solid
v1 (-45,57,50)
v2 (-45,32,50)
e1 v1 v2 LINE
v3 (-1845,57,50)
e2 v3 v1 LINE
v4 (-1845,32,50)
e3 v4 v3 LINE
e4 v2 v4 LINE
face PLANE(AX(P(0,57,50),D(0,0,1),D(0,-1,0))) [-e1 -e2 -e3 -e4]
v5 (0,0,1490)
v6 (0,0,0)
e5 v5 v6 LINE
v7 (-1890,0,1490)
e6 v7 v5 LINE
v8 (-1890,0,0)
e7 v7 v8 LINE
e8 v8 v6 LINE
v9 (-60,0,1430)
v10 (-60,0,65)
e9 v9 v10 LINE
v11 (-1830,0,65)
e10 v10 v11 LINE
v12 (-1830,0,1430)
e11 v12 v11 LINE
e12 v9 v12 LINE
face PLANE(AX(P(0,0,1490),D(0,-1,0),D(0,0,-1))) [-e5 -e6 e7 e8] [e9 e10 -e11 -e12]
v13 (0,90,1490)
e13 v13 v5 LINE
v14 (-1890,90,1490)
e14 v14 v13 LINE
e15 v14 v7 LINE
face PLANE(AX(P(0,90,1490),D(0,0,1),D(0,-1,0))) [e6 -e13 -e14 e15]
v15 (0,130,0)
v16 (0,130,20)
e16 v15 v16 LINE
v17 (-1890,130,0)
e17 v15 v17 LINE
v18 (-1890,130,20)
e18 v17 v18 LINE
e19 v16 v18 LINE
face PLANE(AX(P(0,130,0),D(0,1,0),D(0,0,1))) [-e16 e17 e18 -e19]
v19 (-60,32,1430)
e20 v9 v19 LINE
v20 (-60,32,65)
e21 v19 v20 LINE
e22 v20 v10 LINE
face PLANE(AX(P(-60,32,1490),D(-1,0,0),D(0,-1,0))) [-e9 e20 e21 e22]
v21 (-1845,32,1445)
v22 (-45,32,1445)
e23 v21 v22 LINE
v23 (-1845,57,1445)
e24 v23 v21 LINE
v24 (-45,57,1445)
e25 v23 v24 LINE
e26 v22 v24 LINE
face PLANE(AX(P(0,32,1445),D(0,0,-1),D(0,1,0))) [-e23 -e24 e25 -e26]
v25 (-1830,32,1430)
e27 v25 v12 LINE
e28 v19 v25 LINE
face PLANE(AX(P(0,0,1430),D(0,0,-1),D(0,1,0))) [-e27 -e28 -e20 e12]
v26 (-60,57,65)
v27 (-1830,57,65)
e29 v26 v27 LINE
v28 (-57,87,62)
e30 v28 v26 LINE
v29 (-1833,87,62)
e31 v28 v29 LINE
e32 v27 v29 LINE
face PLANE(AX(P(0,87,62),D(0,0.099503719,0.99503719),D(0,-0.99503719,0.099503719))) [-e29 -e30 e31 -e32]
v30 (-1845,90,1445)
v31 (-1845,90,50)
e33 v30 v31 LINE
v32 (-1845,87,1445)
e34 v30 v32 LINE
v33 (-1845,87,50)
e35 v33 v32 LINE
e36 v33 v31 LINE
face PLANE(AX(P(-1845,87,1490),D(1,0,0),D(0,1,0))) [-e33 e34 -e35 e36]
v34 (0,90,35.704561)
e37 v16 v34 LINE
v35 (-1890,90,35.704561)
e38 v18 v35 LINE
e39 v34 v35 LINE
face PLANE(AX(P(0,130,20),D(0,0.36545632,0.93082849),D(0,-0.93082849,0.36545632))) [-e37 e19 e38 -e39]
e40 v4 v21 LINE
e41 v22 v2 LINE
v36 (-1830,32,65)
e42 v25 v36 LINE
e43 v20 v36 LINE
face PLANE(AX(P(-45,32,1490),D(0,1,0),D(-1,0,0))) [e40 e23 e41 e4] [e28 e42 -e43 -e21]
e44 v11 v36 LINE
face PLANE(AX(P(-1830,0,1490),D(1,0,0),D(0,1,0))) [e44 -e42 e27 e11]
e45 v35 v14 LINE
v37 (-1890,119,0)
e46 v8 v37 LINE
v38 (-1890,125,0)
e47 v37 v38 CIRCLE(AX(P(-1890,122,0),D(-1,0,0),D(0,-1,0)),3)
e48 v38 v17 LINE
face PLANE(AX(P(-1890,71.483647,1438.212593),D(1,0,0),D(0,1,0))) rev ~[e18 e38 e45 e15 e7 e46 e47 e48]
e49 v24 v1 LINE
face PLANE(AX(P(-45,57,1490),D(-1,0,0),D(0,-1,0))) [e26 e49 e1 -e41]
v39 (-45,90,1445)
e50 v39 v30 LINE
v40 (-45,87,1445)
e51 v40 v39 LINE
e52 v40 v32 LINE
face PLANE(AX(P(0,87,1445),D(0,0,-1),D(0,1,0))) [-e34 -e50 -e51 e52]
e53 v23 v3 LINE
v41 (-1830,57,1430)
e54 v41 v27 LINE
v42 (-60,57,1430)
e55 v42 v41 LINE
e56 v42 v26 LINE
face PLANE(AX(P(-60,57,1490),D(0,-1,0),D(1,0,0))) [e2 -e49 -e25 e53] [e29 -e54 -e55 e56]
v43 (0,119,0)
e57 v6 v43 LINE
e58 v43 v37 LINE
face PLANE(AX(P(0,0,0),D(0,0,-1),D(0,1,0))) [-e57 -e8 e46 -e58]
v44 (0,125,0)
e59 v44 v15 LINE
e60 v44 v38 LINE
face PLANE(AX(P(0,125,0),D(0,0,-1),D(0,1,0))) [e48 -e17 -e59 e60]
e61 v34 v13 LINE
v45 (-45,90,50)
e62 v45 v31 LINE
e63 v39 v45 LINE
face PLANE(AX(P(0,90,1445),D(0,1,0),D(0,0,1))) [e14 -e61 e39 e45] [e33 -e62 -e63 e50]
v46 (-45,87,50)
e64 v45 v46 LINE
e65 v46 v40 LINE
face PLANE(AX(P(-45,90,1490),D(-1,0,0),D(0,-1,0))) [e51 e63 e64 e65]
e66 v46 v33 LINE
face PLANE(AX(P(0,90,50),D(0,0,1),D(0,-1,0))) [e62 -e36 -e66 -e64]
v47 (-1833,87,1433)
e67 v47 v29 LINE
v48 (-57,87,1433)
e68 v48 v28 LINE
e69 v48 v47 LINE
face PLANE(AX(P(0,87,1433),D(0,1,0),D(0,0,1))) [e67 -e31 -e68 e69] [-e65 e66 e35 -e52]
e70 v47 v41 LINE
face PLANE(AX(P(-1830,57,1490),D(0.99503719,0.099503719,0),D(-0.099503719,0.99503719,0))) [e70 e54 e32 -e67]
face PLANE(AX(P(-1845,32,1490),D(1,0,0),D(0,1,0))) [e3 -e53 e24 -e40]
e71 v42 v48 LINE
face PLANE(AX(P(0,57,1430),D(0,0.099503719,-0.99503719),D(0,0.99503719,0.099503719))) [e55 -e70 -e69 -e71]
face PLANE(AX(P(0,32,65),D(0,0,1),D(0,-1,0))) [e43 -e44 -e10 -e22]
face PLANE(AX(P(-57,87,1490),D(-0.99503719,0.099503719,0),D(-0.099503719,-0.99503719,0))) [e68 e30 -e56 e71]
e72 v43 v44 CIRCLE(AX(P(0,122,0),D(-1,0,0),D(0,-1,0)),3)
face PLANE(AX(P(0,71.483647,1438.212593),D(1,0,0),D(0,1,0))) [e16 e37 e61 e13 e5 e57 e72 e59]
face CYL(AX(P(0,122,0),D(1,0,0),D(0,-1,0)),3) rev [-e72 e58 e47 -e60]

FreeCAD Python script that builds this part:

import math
import FreeCAD as App
import Part
import Sketcher
from FreeCAD import Vector

doc = App.newDocument("Part")
params = doc.addObject("Spreadsheet::Sheet", "Params")
for row, (alias, value) in enumerate([
    ("sketch1_radius", "3 mm"),
    ("sketch1_width", "119 mm"),
    ("sketch1_width2", "5 mm"),
    ("sketch1_width3", "3 mm"),
    ("sketch1_width4", "25 mm"),
    ("pad1_length", "1890 mm"),
    ("sketch2_width", "60 mm"),
    ("sketch2_width2", "45 mm"),
    ("sketch2_width3", "12 mm"),
    ("sketch2_height", "90 mm"),
    ("sketch2_height2", "3 mm"),
    ("pad2_length", "1490 mm"),
], start=1):
    params.set(f"A{row}", alias)
    params.set(f"B{row}", "=" + value)
    params.setAlias(f"B{row}", alias)

body = doc.addObject("PartDesign::Body", "Body")
body.AllowCompound = True

sketch1 = body.newObject("Sketcher::SketchObject", "Sketch")
sketch1.AttachmentSupport = (doc.getObject("YZ_Plane"), [""])
sketch1.MapMode = "FlatFace"
sketch1.addGeometry(Part.LineSegment(Vector(0, 0, 0), Vector(119, 0, 0)), False)
sketch1.addGeometry(Part.ArcOfCircle(Part.Circle(Vector(122, 0, 0), Vector(0, 0, 1), 3), math.radians(0), math.radians(180)), False)
sketch1.addGeometry(Part.LineSegment(Vector(125, 0, 0), Vector(130, 0, 0)), False)
sketch1.addGeometry(Part.LineSegment(Vector(130, 0, 0), Vector(130, 20, 0)), False)
sketch1.addGeometry(Part.LineSegment(Vector(130, 20, 0), Vector(90, 35.7, 0)), False)
sketch1.addGeometry(Part.LineSegment(Vector(90, 35.7, 0), Vector(90, 50, 0)), False)
sketch1.addGeometry(Part.LineSegment(Vector(90, 50, 0), Vector(87, 50, 0)), False)
sketch1.addGeometry(Part.LineSegment(Vector(87, 50, 0), Vector(87, 62, 0)), False)
sketch1.addGeometry(Part.LineSegment(Vector(87, 62, 0), Vector(57, 65, 0)), False)
sketch1.addGeometry(Part.LineSegment(Vector(57, 65, 0), Vector(57, 50, 0)), False)
sketch1.addGeometry(Part.LineSegment(Vector(57, 50, 0), Vector(32, 50, 0)), False)
sketch1.addGeometry(Part.LineSegment(Vector(32, 50, 0), Vector(32, 65, 0)), False)
sketch1.addGeometry(Part.LineSegment(Vector(32, 65, 0), Vector(0, 65, 0)), False)
sketch1.addGeometry(Part.LineSegment(Vector(0, 65, 0), Vector(0, 0, 0)), False)
sketch1.addGeometry(Part.LineSegment(Vector(87, 1433, 0), Vector(87, 1445, 0)), False)
sketch1.addGeometry(Part.LineSegment(Vector(87, 1445, 0), Vector(90, 1445, 0)), False)
sketch1.addGeometry(Part.LineSegment(Vector(90, 1445, 0), Vector(90, 1490, 0)), False)
sketch1.addGeometry(Part.LineSegment(Vector(90, 1490, 0), Vector(0, 1490, 0)), False)
sketch1.addGeometry(Part.LineSegment(Vector(0, 1490, 0), Vector(0, 1430, 0)), False)
sketch1.addGeometry(Part.LineSegment(Vector(0, 1430, 0), Vector(32, 1430, 0)), False)
sketch1.addGeometry(Part.LineSegment(Vector(32, 1430, 0), Vector(32, 1445, 0)), False)
sketch1.addGeometry(Part.LineSegment(Vector(32, 1445, 0), Vector(57, 1445, 0)), False)
sketch1.addGeometry(Part.LineSegment(Vector(57, 1445, 0), Vector(57, 1430, 0)), False)
sketch1.addGeometry(Part.LineSegment(Vector(57, 1430, 0), Vector(87, 1433, 0)), False)
sketch1.addConstraint(Sketcher.Constraint("Coincident", 0, 2, 1, 2))
sketch1.addConstraint(Sketcher.Constraint("Coincident", 1, 1, 2, 1))
sketch1.addConstraint(Sketcher.Constraint("Coincident", 2, 2, 3, 1))
sketch1.addConstraint(Sketcher.Constraint("Coincident", 3, 2, 4, 1))
sketch1.addConstraint(Sketcher.Constraint("Coincident", 4, 2, 5, 1))
sketch1.addConstraint(Sketcher.Constraint("Coincident", 5, 2, 6, 1))
sketch1.addConstraint(Sketcher.Constraint("Coincident", 6, 2, 7, 1))
sketch1.addConstraint(Sketcher.Constraint("Coincident", 7, 2, 8, 1))
sketch1.addConstraint(Sketcher.Constraint("Coincident", 8, 2, 9, 1))
sketch1.addConstraint(Sketcher.Constraint("Coincident", 9, 2, 10, 1))
sketch1.addConstraint(Sketcher.Constraint("Coincident", 10, 2, 11, 1))
sketch1.addConstraint(Sketcher.Constraint("Coincident", 11, 2, 12, 1))
sketch1.addConstraint(Sketcher.Constraint("Coincident", 12, 2, 13, 1))
sketch1.addConstraint(Sketcher.Constraint("Coincident", 13, 2, 0, 1))
sketch1.addConstraint(Sketcher.Constraint("Coincident", 14, 2, 15, 1))
sketch1.addConstraint(Sketcher.Constraint("Coincident", 15, 2, 16, 1))
sketch1.addConstraint(Sketcher.Constraint("Coincident", 16, 2, 17, 1))
sketch1.addConstraint(Sketcher.Constraint("Coincident", 17, 2, 18, 1))
sketch1.addConstraint(Sketcher.Constraint("Coincident", 18, 2, 19, 1))
sketch1.addConstraint(Sketcher.Constraint("Coincident", 19, 2, 20, 1))
sketch1.addConstraint(Sketcher.Constraint("Coincident", 20, 2, 21, 1))
sketch1.addConstraint(Sketcher.Constraint("Coincident", 21, 2, 22, 1))
sketch1.addConstraint(Sketcher.Constraint("Coincident", 22, 2, 23, 1))
sketch1.addConstraint(Sketcher.Constraint("Coincident", 23, 2, 14, 1))
sketch1.addConstraint(Sketcher.Constraint("Horizontal", 0))
sketch1.addConstraint(Sketcher.Constraint("Horizontal", 2))
sketch1.addConstraint(Sketcher.Constraint("Vertical", 3))
sketch1.addConstraint(Sketcher.Constraint("Vertical", 5))
sketch1.addConstraint(Sketcher.Constraint("Horizontal", 6))
sketch1.addConstraint(Sketcher.Constraint("Vertical", 7))
sketch1.addConstraint(Sketcher.Constraint("Vertical", 9))
sketch1.addConstraint(Sketcher.Constraint("Horizontal", 10))
sketch1.addConstraint(Sketcher.Constraint("Vertical", 11))
sketch1.addConstraint(Sketcher.Constraint("Horizontal", 12))
sketch1.addConstraint(Sketcher.Constraint("Vertical", 13))
sketch1.addConstraint(Sketcher.Constraint("Vertical", 14))
sketch1.addConstraint(Sketcher.Constraint("Horizontal", 15))
sketch1.addConstraint(Sketcher.Constraint("Vertical", 16))
sketch1.addConstraint(Sketcher.Constraint("Horizontal", 17))
sketch1.addConstraint(Sketcher.Constraint("Vertical", 18))
sketch1.addConstraint(Sketcher.Constraint("Horizontal", 19))
sketch1.addConstraint(Sketcher.Constraint("Vertical", 20))
sketch1.addConstraint(Sketcher.Constraint("Horizontal", 21))
sketch1.addConstraint(Sketcher.Constraint("Vertical", 22))
sketch1.addConstraint(Sketcher.Constraint("Coincident", 13, 2, -1, 1))
sketch1.addConstraint(Sketcher.Constraint("PointOnObject", 1, 3, -1))
sketch1.addConstraint(Sketcher.Constraint("PointOnObject", 1, 1, -1))
sketch1.addConstraint(Sketcher.Constraint("PointOnObject", 17, 2, -2))
sketch1.addConstraint(Sketcher.Constraint("Horizontal", 6, 2, 9, 2))
sketch1.addConstraint(Sketcher.Constraint("Horizontal", 8, 2, 11, 2))
sketch1.addConstraint(Sketcher.Constraint("Horizontal", 15, 2, 20, 2))
sketch1.addConstraint(Sketcher.Constraint("Horizontal", 19, 2, 22, 2))
sketch1.addConstraint(Sketcher.Constraint("Vertical", 7, 2, 14, 2))
sketch1.addConstraint(Sketcher.Constraint("Vertical", 5, 2, 15, 2))
sketch1.addConstraint(Sketcher.Constraint("Vertical", 11, 2, 19, 2))
sketch1.addConstraint(Sketcher.Constraint("Vertical", 9, 2, 21, 2))
sketch1.addConstraint(Sketcher.Constraint("Equal", 7, 14))
sketch1.addConstraint(Sketcher.Constraint("Equal", 11, 20))
sketch1.addConstraint(Sketcher.Constraint("Radius", 1, 3.0))
sketch1.addConstraint(Sketcher.Constraint("DistanceX", 0, 1, 0, 2, 119.0))
sketch1.addConstraint(Sketcher.Constraint("DistanceX", 2, 1, 2, 2, 5.0))
sketch1.addConstraint(Sketcher.Constraint("DistanceX", 6, 2, 6, 1, 3.0))
sketch1.addConstraint(Sketcher.Constraint("DistanceX", 10, 2, 10, 1, 25.0))
sketch1.addConstraint(Sketcher.Constraint("DistanceX", 12, 2, 12, 1, 32.0))
sketch1.addConstraint(Sketcher.Constraint("DistanceX", 17, 2, 17, 1, 90.0))
sketch1.addConstraint(Sketcher.Constraint("DistanceY", 3, 1, 3, 2, 20.0))
sketch1.addConstraint(Sketcher.Constraint("DistanceY", 7, 1, 7, 2, 12.0))
sketch1.addConstraint(Sketcher.Constraint("DistanceY", 9, 2, 9, 1, 15.0))
sketch1.addConstraint(Sketcher.Constraint("DistanceY", 13, 2, 13, 1, 65.0))
sketch1.addConstraint(Sketcher.Constraint("DistanceY", 16, 1, 16, 2, 45.0))
sketch1.addConstraint(Sketcher.Constraint("DistanceY", -1, 1, 14, 2, 1445.0))
sketch1.addConstraint(Sketcher.Constraint("DistanceY", 5, 1, 5, 2, 14.295439))
sketch1.setExpression("Constraints[58]", "Params.sketch1_radius")
sketch1.setExpression("Constraints[59]", "Params.sketch1_width")
sketch1.setExpression("Constraints[60]", "Params.sketch1_width2")
sketch1.setExpression("Constraints[61]", "Params.sketch1_width3")
sketch1.setExpression("Constraints[62]", "Params.sketch1_width4")
pad1 = body.newObject("PartDesign::Pad", "Pad")
pad1.Profile = sketch1
pad1.setExpression("Length", "Params.pad1_length")
pad1.Reversed = True

sketch2 = body.newObject("Sketcher::SketchObject", "Sketch001")
sketch2.AttachmentSupport = (doc.getObject("XY_Plane"), [""])
sketch2.MapMode = "FlatFace"
sketch2.AttachmentOffset = App.Placement(Vector(0, 0, 1490), App.Rotation())
sketch2.addGeometry(Part.LineSegment(Vector(-60, 0, 0), Vector(0, 0, 0)), False)
sketch2.addGeometry(Part.LineSegment(Vector(0, 0, 0), Vector(0, 90, 0)), False)
sketch2.addGeometry(Part.LineSegment(Vector(0, 90, 0), Vector(-45, 90, 0)), False)
sketch2.addGeometry(Part.LineSegment(Vector(-45, 90, 0), Vector(-45, 87, 0)), False)
sketch2.addGeometry(Part.LineSegment(Vector(-45, 87, 0), Vector(-57, 87, 0)), False)
sketch2.addGeometry(Part.LineSegment(Vector(-57, 87, 0), Vector(-60, 57, 0)), False)
sketch2.addGeometry(Part.LineSegment(Vector(-60, 57, 0), Vector(-45, 57, 0)), False)
sketch2.addGeometry(Part.LineSegment(Vector(-45, 57, 0), Vector(-45, 32, 0)), False)
sketch2.addGeometry(Part.LineSegment(Vector(-45, 32, 0), Vector(-60, 32, 0)), False)
sketch2.addGeometry(Part.LineSegment(Vector(-60, 32, 0), Vector(-60, 0, 0)), False)
sketch2.addGeometry(Part.LineSegment(Vector(-1890, 90, 0), Vector(-1890, 0, 0)), False)
sketch2.addGeometry(Part.LineSegment(Vector(-1890, 0, 0), Vector(-1830, 0, 0)), False)
sketch2.addGeometry(Part.LineSegment(Vector(-1830, 0, 0), Vector(-1830, 32, 0)), False)
sketch2.addGeometry(Part.LineSegment(Vector(-1830, 32, 0), Vector(-1845, 32, 0)), False)
sketch2.addGeometry(Part.LineSegment(Vector(-1845, 32, 0), Vector(-1845, 57, 0)), False)
sketch2.addGeometry(Part.LineSegment(Vector(-1845, 57, 0), Vector(-1830, 57, 0)), False)
sketch2.addGeometry(Part.LineSegment(Vector(-1830, 57, 0), Vector(-1833, 87, 0)), False)
sketch2.addGeometry(Part.LineSegment(Vector(-1833, 87, 0), Vector(-1845, 87, 0)), False)
sketch2.addGeometry(Part.LineSegment(Vector(-1845, 87, 0), Vector(-1845, 90, 0)), False)
sketch2.addGeometry(Part.LineSegment(Vector(-1845, 90, 0), Vector(-1890, 90, 0)), False)
sketch2.addConstraint(Sketcher.Constraint("Coincident", 0, 2, 1, 1))
sketch2.addConstraint(Sketcher.Constraint("Coincident", 1, 2, 2, 1))
sketch2.addConstraint(Sketcher.Constraint("Coincident", 2, 2, 3, 1))
sketch2.addConstraint(Sketcher.Constraint("Coincident", 3, 2, 4, 1))
sketch2.addConstraint(Sketcher.Constraint("Coincident", 4, 2, 5, 1))
sketch2.addConstraint(Sketcher.Constraint("Coincident", 5, 2, 6, 1))
sketch2.addConstraint(Sketcher.Constraint("Coincident", 6, 2, 7, 1))
sketch2.addConstraint(Sketcher.Constraint("Coincident", 7, 2, 8, 1))
sketch2.addConstraint(Sketcher.Constraint("Coincident", 8, 2, 9, 1))
sketch2.addConstraint(Sketcher.Constraint("Coincident", 9, 2, 0, 1))
sketch2.addConstraint(Sketcher.Constraint("Coincident", 10, 2, 11, 1))
sketch2.addConstraint(Sketcher.Constraint("Coincident", 11, 2, 12, 1))
sketch2.addConstraint(Sketcher.Constraint("Coincident", 12, 2, 13, 1))
sketch2.addConstraint(Sketcher.Constraint("Coincident", 13, 2, 14, 1))
sketch2.addConstraint(Sketcher.Constraint("Coincident", 14, 2, 15, 1))
sketch2.addConstraint(Sketcher.Constraint("Coincident", 15, 2, 16, 1))
sketch2.addConstraint(Sketcher.Constraint("Coincident", 16, 2, 17, 1))
sketch2.addConstraint(Sketcher.Constraint("Coincident", 17, 2, 18, 1))
sketch2.addConstraint(Sketcher.Constraint("Coincident", 18, 2, 19, 1))
sketch2.addConstraint(Sketcher.Constraint("Coincident", 19, 2, 10, 1))
sketch2.addConstraint(Sketcher.Constraint("Horizontal", 0))
sketch2.addConstraint(Sketcher.Constraint("Vertical", 1))
sketch2.addConstraint(Sketcher.Constraint("Horizontal", 2))
sketch2.addConstraint(Sketcher.Constraint("Vertical", 3))
sketch2.addConstraint(Sketcher.Constraint("Horizontal", 4))
sketch2.addConstraint(Sketcher.Constraint("Horizontal", 6))
sketch2.addConstraint(Sketcher.Constraint("Vertical", 7))
sketch2.addConstraint(Sketcher.Constraint("Horizontal", 8))
sketch2.addConstraint(Sketcher.Constraint("Vertical", 9))
sketch2.addConstraint(Sketcher.Constraint("Vertical", 10))
sketch2.addConstraint(Sketcher.Constraint("Horizontal", 11))
sketch2.addConstraint(Sketcher.Constraint("Vertical", 12))
sketch2.addConstraint(Sketcher.Constraint("Horizontal", 13))
sketch2.addConstraint(Sketcher.Constraint("Vertical", 14))
sketch2.addConstraint(Sketcher.Constraint("Horizontal", 15))
sketch2.addConstraint(Sketcher.Constraint("Horizontal", 17))
sketch2.addConstraint(Sketcher.Constraint("Vertical", 18))
sketch2.addConstraint(Sketcher.Constraint("Horizontal", 19))
sketch2.addConstraint(Sketcher.Constraint("Coincident", 0, 2, -1, 1))
sketch2.addConstraint(Sketcher.Constraint("PointOnObject", 10, 2, -1))
sketch2.addConstraint(Sketcher.Constraint("Horizontal", 8, 2, 12, 2))
sketch2.addConstraint(Sketcher.Constraint("Horizontal", 6, 2, 14, 2))
sketch2.addConstraint(Sketcher.Constraint("Horizontal", 4, 2, 16, 2))
sketch2.addConstraint(Sketcher.Constraint("Horizontal", 2, 2, 18, 2))
sketch2.addConstraint(Sketcher.Constraint("Vertical", 3, 2, 6, 2))
sketch2.addConstraint(Sketcher.Constraint("Vertical", 5, 2, 8, 2))
sketch2.addConstraint(Sketcher.Constraint("Vertical", 12, 2, 15, 2))
sketch2.addConstraint(Sketcher.Constraint("Vertical", 14, 2, 17, 2))
sketch2.addConstraint(Sketcher.Constraint("Equal", 0, 11))
sketch2.addConstraint(Sketcher.Constraint("Equal", 8, 13))
sketch2.addConstraint(Sketcher.Constraint("Equal", 4, 17))
sketch2.addConstraint(Sketcher.Constraint("DistanceX", 0, 1, 0, 2, 60.0))
sketch2.addConstraint(Sketcher.Constraint("DistanceX", 2, 2, 2, 1, 45.0))
sketch2.addConstraint(Sketcher.Constraint("DistanceX", 4, 2, 4, 1, 12.0))
sketch2.addConstraint(Sketcher.Constraint("DistanceY", 1, 1, 1, 2, 90.0))
sketch2.addConstraint(Sketcher.Constraint("DistanceY", 3, 2, 3, 1, 3.0))
sketch2.addConstraint(Sketcher.Constraint("DistanceY", 7, 2, 7, 1, 25.0))
sketch2.addConstraint(Sketcher.Constraint("DistanceY", 9, 2, 9, 1, 32.0))
sketch2.addConstraint(Sketcher.Constraint("DistanceX", 10, 2, -1, 1, 1890.0))
sketch2.setExpression("Constraints[51]", "Params.sketch2_width")
sketch2.setExpression("Constraints[52]", "Params.sketch2_width2")
sketch2.setExpression("Constraints[53]", "Params.sketch2_width3")
sketch2.setExpression("Constraints[54]", "Params.sketch2_height")
sketch2.setExpression("Constraints[55]", "Params.sketch2_height2")
pad2 = body.newObject("PartDesign::Pad", "Pad001")
pad2.Profile = sketch2
pad2.setExpression("Length", "Params.pad2_length")
pad2.Reversed = True

doc.recompute()
